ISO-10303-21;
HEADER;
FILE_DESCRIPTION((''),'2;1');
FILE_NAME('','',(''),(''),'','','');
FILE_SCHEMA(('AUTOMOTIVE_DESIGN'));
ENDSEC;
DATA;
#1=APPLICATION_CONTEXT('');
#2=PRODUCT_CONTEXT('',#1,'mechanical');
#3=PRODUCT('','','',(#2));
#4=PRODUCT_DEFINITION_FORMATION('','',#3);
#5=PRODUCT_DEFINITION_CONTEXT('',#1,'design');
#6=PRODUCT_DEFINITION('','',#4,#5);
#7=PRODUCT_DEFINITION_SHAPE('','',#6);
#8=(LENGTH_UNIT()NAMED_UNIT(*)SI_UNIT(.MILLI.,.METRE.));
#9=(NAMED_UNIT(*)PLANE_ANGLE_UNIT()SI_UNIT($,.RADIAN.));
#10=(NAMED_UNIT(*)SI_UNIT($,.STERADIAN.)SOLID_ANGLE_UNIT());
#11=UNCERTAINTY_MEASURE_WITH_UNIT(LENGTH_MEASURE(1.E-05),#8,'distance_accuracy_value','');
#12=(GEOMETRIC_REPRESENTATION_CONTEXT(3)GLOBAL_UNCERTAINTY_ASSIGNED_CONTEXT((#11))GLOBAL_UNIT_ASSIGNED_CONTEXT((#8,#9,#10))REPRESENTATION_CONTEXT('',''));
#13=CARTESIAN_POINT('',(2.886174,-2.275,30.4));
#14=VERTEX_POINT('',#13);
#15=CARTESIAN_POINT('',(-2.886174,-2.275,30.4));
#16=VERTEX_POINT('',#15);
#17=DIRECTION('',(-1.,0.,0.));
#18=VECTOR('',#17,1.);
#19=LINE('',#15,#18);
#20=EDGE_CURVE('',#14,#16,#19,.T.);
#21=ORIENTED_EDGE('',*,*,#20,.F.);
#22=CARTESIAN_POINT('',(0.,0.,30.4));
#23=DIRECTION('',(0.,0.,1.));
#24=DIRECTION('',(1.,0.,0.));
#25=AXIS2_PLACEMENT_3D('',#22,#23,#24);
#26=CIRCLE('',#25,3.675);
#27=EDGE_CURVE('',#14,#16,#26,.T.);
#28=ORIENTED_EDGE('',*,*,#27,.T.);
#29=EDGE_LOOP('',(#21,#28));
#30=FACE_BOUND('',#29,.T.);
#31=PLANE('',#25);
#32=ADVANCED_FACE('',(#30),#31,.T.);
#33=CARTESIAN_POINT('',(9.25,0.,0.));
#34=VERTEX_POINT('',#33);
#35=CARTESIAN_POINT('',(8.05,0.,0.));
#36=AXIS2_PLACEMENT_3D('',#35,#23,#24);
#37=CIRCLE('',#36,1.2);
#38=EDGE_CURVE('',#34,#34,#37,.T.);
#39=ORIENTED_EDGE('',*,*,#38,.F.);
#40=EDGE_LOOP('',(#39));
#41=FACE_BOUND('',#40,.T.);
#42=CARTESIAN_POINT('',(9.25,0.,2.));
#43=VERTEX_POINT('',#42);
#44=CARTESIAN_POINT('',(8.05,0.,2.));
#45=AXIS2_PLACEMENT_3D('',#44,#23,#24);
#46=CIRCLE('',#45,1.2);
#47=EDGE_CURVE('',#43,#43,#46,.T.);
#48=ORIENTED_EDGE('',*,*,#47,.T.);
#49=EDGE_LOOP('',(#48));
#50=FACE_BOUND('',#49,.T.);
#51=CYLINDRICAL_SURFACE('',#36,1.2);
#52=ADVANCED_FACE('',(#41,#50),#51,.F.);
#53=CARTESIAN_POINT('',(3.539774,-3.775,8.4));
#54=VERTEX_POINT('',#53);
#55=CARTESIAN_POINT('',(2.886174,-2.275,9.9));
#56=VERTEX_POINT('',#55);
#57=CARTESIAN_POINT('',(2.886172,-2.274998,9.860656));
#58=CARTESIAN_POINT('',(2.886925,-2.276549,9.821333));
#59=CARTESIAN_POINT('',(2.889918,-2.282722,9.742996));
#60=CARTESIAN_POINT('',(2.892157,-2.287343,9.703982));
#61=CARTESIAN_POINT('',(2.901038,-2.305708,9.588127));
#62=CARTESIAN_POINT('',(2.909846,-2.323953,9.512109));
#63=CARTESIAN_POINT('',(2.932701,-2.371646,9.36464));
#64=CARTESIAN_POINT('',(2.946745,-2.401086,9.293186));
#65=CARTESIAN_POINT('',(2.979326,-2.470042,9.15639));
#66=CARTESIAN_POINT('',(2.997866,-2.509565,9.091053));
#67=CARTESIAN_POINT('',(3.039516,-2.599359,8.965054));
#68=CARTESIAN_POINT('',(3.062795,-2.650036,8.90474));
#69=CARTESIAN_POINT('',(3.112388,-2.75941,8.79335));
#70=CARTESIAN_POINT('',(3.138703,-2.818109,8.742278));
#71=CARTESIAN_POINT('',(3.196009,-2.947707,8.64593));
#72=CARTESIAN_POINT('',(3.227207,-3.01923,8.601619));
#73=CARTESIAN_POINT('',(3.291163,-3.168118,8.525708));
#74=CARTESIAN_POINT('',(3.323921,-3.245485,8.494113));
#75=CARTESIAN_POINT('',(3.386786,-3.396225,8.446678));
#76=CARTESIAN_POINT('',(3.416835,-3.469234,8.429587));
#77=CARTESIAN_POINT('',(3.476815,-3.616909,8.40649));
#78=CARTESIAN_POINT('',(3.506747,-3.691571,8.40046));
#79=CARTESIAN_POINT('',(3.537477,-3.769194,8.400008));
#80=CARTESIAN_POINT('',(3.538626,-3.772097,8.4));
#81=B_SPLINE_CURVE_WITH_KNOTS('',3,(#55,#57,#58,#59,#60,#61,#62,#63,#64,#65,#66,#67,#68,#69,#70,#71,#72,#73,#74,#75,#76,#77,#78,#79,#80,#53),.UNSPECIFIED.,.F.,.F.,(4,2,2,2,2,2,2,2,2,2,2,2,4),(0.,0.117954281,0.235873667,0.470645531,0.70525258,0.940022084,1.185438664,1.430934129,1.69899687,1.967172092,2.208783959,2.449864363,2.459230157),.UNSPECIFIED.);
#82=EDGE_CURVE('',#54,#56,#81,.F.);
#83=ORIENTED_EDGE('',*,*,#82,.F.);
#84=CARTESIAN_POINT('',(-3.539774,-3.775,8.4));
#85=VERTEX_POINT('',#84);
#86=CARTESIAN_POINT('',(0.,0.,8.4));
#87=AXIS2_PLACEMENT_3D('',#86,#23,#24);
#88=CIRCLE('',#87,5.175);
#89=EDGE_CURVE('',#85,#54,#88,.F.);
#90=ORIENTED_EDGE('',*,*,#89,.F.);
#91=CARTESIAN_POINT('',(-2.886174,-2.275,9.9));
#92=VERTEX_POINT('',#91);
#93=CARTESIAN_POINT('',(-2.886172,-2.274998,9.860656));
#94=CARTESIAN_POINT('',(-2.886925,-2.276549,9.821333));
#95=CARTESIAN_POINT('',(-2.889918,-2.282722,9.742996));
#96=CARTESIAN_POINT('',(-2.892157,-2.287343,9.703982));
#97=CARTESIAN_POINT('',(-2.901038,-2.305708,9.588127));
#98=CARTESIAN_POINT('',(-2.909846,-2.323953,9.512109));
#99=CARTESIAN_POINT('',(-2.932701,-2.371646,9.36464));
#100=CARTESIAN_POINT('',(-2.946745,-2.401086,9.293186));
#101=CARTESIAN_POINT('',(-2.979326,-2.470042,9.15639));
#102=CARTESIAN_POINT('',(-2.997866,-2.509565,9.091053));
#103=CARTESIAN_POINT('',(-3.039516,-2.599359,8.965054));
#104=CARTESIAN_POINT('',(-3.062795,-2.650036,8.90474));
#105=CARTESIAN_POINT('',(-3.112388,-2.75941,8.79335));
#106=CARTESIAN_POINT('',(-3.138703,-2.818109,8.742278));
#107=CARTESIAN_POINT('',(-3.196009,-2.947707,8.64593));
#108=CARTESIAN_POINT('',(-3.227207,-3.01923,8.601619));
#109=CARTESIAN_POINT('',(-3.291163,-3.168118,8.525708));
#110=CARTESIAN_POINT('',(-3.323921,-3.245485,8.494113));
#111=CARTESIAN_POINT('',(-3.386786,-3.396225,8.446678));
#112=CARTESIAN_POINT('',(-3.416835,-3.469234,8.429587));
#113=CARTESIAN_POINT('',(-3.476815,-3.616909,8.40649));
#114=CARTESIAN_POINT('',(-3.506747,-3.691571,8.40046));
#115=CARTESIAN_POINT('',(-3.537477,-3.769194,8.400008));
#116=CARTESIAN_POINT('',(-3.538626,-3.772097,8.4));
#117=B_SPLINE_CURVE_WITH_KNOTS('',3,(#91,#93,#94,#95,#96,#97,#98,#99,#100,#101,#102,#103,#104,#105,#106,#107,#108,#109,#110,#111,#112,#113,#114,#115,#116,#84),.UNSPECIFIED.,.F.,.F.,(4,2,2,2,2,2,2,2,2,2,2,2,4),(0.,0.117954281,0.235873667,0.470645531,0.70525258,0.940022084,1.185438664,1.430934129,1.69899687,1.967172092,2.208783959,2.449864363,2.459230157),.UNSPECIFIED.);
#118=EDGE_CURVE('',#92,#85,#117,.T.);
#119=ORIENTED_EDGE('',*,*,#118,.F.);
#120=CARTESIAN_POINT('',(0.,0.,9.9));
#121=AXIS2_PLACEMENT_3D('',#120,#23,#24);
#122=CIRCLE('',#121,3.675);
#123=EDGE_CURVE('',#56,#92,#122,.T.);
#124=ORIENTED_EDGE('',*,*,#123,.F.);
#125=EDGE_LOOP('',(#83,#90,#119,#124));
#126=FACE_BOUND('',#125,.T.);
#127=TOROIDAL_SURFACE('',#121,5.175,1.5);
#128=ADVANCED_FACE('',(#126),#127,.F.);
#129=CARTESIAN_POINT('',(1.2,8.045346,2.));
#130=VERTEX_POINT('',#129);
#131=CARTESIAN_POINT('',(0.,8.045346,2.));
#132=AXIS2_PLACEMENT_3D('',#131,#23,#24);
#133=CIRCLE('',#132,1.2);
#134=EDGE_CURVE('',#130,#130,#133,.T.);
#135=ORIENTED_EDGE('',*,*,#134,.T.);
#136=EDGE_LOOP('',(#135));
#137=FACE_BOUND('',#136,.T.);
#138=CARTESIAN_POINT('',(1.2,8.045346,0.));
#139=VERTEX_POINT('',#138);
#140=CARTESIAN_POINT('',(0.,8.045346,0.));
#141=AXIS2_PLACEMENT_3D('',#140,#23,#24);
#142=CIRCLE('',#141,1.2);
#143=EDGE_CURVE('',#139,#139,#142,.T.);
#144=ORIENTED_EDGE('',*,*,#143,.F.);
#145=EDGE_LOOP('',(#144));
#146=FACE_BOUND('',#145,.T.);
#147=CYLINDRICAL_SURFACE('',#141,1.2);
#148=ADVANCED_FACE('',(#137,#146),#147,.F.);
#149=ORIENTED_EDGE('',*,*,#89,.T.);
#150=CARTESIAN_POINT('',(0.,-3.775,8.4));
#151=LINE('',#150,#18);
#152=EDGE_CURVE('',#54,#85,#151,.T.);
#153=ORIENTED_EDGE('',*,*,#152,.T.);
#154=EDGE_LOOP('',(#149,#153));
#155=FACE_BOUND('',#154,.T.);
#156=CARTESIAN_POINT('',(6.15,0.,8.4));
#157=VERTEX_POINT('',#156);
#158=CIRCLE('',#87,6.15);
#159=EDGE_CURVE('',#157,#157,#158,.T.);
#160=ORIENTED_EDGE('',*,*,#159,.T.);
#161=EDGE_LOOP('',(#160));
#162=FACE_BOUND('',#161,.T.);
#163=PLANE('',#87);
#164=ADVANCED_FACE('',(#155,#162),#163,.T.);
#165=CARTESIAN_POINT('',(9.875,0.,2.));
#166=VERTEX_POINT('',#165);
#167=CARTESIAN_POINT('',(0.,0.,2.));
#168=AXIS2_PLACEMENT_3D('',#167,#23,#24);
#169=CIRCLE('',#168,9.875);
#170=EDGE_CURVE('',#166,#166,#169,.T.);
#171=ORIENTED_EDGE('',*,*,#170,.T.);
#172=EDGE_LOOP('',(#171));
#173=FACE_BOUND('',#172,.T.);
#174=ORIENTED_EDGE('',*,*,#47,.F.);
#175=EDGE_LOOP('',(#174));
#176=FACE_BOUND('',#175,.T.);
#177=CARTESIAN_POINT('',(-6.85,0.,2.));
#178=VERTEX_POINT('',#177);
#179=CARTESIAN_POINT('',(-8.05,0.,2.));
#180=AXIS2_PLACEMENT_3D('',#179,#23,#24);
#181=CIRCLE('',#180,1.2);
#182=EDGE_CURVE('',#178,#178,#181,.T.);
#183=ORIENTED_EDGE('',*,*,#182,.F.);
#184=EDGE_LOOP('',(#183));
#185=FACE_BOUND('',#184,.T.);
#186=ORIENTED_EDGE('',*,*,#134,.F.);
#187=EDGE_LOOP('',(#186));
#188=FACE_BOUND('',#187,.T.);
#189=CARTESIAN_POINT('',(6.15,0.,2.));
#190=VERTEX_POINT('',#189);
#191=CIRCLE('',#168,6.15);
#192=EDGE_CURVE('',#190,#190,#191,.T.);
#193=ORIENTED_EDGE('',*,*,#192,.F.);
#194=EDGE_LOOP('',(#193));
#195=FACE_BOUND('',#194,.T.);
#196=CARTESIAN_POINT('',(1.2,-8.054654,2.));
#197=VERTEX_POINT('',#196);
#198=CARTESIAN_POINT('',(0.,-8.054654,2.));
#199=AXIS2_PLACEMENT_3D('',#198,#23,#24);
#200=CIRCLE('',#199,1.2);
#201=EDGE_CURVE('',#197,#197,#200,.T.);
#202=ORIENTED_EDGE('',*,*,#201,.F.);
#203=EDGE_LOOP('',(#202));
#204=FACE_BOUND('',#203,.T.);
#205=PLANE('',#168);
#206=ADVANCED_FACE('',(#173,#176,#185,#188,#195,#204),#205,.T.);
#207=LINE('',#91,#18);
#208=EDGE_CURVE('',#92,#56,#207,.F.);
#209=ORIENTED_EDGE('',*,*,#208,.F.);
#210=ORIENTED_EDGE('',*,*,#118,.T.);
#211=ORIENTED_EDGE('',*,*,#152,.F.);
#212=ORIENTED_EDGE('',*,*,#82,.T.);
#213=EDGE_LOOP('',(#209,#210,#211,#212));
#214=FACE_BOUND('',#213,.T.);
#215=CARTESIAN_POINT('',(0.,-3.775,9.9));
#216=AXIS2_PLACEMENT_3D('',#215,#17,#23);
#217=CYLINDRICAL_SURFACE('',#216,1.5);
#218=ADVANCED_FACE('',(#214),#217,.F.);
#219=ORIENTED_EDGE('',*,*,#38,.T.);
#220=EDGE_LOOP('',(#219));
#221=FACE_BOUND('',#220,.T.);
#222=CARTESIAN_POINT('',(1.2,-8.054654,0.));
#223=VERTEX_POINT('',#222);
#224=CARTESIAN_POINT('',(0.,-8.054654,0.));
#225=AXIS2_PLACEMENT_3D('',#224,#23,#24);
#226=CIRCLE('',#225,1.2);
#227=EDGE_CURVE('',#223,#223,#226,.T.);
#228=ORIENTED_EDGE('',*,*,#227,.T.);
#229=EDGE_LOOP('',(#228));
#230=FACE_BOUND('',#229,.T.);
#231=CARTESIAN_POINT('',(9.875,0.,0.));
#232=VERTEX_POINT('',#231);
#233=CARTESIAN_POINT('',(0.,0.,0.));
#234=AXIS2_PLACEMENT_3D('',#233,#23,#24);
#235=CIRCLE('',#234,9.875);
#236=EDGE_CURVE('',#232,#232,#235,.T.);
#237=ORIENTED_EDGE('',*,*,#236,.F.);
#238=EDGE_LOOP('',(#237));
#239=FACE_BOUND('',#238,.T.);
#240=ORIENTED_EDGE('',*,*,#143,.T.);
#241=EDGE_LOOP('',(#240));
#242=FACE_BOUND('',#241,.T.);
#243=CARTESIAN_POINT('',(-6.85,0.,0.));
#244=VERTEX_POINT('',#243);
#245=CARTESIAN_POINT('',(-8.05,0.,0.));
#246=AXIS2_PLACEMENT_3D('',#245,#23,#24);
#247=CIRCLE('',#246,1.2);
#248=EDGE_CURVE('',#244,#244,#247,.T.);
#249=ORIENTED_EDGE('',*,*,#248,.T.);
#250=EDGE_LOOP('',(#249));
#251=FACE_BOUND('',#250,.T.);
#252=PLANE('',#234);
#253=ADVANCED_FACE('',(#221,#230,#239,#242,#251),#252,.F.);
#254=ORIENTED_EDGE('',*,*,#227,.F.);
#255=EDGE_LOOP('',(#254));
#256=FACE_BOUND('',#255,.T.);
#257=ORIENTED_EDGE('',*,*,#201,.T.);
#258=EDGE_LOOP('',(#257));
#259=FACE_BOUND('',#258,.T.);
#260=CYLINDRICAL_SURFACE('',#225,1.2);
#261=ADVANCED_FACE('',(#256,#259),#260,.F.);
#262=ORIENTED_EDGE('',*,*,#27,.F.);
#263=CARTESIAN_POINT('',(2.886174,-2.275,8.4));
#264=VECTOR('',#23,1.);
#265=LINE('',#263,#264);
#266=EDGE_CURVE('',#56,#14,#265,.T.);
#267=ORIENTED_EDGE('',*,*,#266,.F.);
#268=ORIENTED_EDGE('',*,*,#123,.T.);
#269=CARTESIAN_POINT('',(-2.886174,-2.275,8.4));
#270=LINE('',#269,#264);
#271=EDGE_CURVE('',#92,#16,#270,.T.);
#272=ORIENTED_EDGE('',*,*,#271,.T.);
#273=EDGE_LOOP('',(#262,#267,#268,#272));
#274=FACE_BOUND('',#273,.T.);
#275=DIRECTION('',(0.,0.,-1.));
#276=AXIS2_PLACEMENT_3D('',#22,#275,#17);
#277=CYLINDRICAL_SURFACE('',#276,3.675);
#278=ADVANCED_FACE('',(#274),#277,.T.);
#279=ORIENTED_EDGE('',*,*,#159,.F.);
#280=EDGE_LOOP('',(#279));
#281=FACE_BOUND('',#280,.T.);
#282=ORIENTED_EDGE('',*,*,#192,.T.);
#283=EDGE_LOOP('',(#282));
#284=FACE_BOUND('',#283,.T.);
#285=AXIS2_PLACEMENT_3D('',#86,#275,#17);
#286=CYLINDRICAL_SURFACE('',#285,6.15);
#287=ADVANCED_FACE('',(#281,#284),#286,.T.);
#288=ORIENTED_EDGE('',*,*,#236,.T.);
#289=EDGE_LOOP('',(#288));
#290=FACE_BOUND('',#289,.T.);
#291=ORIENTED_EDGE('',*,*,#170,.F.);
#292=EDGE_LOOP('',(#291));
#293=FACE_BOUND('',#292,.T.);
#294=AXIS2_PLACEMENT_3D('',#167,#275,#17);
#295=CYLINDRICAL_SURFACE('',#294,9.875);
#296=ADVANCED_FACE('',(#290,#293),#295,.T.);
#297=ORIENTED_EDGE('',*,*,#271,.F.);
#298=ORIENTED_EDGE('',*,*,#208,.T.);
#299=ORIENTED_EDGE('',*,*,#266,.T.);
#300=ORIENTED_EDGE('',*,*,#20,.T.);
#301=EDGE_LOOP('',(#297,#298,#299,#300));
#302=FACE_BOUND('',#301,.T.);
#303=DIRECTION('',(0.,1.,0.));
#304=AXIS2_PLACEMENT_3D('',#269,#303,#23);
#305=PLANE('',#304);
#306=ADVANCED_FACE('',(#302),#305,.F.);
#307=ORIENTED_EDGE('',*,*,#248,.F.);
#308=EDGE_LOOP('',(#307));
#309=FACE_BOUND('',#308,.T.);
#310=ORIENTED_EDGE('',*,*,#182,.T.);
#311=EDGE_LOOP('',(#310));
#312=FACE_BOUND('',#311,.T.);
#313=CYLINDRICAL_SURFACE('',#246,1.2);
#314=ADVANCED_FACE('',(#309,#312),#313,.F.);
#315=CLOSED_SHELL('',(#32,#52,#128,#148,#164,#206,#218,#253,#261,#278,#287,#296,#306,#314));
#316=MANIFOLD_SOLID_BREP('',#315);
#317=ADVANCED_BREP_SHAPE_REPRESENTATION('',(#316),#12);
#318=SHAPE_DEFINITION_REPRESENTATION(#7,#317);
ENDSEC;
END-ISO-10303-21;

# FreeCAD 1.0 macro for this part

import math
import FreeCAD as App
import Part
import Sketcher

V = App.Vector
Q = App.Units.Quantity


def edges_at(feature, points):
    """Names of the edges that pass closest to the given points."""
    edges = feature.Shape.Edges
    near = lambda p: min(range(len(edges)), key=lambda i: edges[i].distToShape(Part.Vertex(*p))[0])
    return sorted({f"Edge{near(p) + 1}" for p in points})

doc = App.newDocument("Part")
body = doc.addObject("PartDesign::Body", "Body")

# Sketch on XY plane
sketch1 = body.newObject("Sketcher::SketchObject", "Sketch")
sketch1.AttachmentSupport = (doc.getObject("XY_Plane"), [""])
sketch1.MapMode = "FlatFace"
sketch1.addGeometry(Part.Circle(V(0, 0, 0), V(0, 0, 1), 10), False)
sketch1.addConstraint([
    Sketcher.Constraint("Coincident", 0, 3, -1, 1),
    Sketcher.Constraint("Diameter", 0, Q("19.75 mm")),
])
pad1 = body.newObject("PartDesign::Pad", "Pad")
pad1.Profile = sketch1
pad1.Length = 2

# Sketch on XY plane
sketch2 = body.newObject("Sketcher::SketchObject", "Sketch001")
sketch2.AttachmentSupport = (doc.getObject("XY_Plane"), [""])
sketch2.MapMode = "FlatFace"
sketch2.AttachmentOffset = App.Placement(V(0, 0, 2), App.Rotation())
sketch2.addGeometry(Part.Circle(V(0, 0, 0), V(0, 0, 1), 6), False)
sketch2.addConstraint([
    Sketcher.Constraint("Coincident", 0, 3, -1, 1),
    Sketcher.Constraint("Diameter", 0, Q("12.3 mm")),
])
pad2 = body.newObject("PartDesign::Pad", "Pad001")
pad2.Profile = sketch2
pad2.Length = 6.4

# Sketch on XY plane
sketch3 = body.newObject("Sketcher::SketchObject", "Sketch002")
sketch3.AttachmentSupport = (doc.getObject("XY_Plane"), [""])
sketch3.MapMode = "FlatFace"
sketch3.AttachmentOffset = App.Placement(V(0, 0, 8.4), App.Rotation())
sketch3.addGeometry(Part.Circle(V(0, 0, 0), V(0, 0, 1), 3.7), False)
sketch3.addConstraint([
    Sketcher.Constraint("Coincident", 0, 3, -1, 1),
    Sketcher.Constraint("Diameter", 0, Q("7.35 mm")),
])
pad3 = body.newObject("PartDesign::Pad", "Pad002")
pad3.Profile = sketch3
pad3.Length = 22

# Sketch on XY plane
sketch4 = body.newObject("Sketcher::SketchObject", "Sketch003")
sketch4.AttachmentSupport = (doc.getObject("XY_Plane"), [""])
sketch4.MapMode = "FlatFace"
sketch4.AttachmentOffset = App.Placement(V(0, 0, 8.4), App.Rotation())
sketch4.addGeometry([
    Part.LineSegment(V(2.9, -2.3, 0), V(-2.9, -2.3, 0)),
    Part.ArcOfCircle(Part.Circle(V(0, 0, 0), V(0, 0, 1), 3.7), math.radians(-142), math.radians(-38)),
], False)
sketch4.addConstraint([
    Sketcher.Constraint("Coincident", 0, 1, 1, 2),
    Sketcher.Constraint("Coincident", 1, 1, 0, 2),
    Sketcher.Constraint("Horizontal", 0),
    Sketcher.Constraint("Coincident", 1, 3, -1, 1),
    Sketcher.Constraint("Radius", 1, Q("3.675 mm")),
    Sketcher.Constraint("DistanceY", 0, 1, -1, 1, Q("2.275 mm")),
])
pocket1 = body.newObject("PartDesign::Pocket", "Pocket")
pocket1.Profile = sketch4
pocket1.Length = 22
pocket1.Reversed = True

# Sketch on XY plane
sketch5 = body.newObject("Sketcher::SketchObject", "Sketch004")
sketch5.AttachmentSupport = (doc.getObject("XY_Plane"), [""])
sketch5.MapMode = "FlatFace"
sketch5.AttachmentOffset = App.Placement(V(0, 0, 2), App.Rotation())
sketch5.addGeometry([
    Part.Circle(V(0, 8, 0), V(0, 0, 1), 1.2),
    Part.Circle(V(0, -8.1, 0), V(0, 0, 1), 1.2),
    Part.Circle(V(-8.1, 0, 0), V(0, 0, 1), 1.2),
    Part.Circle(V(8.1, 0, 0), V(0, 0, 1), 1.2),
], False)
sketch5.addConstraint([
    Sketcher.Constraint("Equal", 0, 1),
    Sketcher.Constraint("Equal", 1, 2),
    Sketcher.Constraint("Equal", 2, 3),
    Sketcher.Constraint("Symmetric", 2, 3, 3, 3, -1, 1),
    Sketcher.Constraint("PointOnObject", 0, 3, -2),
    Sketcher.Constraint("PointOnObject", 1, 3, -2),
    Sketcher.Constraint("PointOnObject", 2, 3, -1),
    Sketcher.Constraint("Diameter", 0, Q("2.4 mm")),
    Sketcher.Constraint("DistanceY", 1, 3, 0, 3, Q("16.1 mm")),
    Sketcher.Constraint("DistanceX", 2, 3, 3, 3, Q("16.1 mm")),
    Sketcher.Constraint("DistanceY", -1, 1, 0, 3, Q("8.045346 mm")),
])
pocket2 = body.newObject("PartDesign::Pocket", "Pocket001")
pocket2.Profile = sketch5
pocket2.Type = "ThroughAll"
doc.recompute()

fillet = body.newObject("PartDesign::Fillet", "Fillet")
fillet.Base = (pocket2, edges_at(pocket2, [(0, 3.675, 8.4), (0, -2.275, 8.4)]))
fillet.Radius = 1.5

doc.recompute()
